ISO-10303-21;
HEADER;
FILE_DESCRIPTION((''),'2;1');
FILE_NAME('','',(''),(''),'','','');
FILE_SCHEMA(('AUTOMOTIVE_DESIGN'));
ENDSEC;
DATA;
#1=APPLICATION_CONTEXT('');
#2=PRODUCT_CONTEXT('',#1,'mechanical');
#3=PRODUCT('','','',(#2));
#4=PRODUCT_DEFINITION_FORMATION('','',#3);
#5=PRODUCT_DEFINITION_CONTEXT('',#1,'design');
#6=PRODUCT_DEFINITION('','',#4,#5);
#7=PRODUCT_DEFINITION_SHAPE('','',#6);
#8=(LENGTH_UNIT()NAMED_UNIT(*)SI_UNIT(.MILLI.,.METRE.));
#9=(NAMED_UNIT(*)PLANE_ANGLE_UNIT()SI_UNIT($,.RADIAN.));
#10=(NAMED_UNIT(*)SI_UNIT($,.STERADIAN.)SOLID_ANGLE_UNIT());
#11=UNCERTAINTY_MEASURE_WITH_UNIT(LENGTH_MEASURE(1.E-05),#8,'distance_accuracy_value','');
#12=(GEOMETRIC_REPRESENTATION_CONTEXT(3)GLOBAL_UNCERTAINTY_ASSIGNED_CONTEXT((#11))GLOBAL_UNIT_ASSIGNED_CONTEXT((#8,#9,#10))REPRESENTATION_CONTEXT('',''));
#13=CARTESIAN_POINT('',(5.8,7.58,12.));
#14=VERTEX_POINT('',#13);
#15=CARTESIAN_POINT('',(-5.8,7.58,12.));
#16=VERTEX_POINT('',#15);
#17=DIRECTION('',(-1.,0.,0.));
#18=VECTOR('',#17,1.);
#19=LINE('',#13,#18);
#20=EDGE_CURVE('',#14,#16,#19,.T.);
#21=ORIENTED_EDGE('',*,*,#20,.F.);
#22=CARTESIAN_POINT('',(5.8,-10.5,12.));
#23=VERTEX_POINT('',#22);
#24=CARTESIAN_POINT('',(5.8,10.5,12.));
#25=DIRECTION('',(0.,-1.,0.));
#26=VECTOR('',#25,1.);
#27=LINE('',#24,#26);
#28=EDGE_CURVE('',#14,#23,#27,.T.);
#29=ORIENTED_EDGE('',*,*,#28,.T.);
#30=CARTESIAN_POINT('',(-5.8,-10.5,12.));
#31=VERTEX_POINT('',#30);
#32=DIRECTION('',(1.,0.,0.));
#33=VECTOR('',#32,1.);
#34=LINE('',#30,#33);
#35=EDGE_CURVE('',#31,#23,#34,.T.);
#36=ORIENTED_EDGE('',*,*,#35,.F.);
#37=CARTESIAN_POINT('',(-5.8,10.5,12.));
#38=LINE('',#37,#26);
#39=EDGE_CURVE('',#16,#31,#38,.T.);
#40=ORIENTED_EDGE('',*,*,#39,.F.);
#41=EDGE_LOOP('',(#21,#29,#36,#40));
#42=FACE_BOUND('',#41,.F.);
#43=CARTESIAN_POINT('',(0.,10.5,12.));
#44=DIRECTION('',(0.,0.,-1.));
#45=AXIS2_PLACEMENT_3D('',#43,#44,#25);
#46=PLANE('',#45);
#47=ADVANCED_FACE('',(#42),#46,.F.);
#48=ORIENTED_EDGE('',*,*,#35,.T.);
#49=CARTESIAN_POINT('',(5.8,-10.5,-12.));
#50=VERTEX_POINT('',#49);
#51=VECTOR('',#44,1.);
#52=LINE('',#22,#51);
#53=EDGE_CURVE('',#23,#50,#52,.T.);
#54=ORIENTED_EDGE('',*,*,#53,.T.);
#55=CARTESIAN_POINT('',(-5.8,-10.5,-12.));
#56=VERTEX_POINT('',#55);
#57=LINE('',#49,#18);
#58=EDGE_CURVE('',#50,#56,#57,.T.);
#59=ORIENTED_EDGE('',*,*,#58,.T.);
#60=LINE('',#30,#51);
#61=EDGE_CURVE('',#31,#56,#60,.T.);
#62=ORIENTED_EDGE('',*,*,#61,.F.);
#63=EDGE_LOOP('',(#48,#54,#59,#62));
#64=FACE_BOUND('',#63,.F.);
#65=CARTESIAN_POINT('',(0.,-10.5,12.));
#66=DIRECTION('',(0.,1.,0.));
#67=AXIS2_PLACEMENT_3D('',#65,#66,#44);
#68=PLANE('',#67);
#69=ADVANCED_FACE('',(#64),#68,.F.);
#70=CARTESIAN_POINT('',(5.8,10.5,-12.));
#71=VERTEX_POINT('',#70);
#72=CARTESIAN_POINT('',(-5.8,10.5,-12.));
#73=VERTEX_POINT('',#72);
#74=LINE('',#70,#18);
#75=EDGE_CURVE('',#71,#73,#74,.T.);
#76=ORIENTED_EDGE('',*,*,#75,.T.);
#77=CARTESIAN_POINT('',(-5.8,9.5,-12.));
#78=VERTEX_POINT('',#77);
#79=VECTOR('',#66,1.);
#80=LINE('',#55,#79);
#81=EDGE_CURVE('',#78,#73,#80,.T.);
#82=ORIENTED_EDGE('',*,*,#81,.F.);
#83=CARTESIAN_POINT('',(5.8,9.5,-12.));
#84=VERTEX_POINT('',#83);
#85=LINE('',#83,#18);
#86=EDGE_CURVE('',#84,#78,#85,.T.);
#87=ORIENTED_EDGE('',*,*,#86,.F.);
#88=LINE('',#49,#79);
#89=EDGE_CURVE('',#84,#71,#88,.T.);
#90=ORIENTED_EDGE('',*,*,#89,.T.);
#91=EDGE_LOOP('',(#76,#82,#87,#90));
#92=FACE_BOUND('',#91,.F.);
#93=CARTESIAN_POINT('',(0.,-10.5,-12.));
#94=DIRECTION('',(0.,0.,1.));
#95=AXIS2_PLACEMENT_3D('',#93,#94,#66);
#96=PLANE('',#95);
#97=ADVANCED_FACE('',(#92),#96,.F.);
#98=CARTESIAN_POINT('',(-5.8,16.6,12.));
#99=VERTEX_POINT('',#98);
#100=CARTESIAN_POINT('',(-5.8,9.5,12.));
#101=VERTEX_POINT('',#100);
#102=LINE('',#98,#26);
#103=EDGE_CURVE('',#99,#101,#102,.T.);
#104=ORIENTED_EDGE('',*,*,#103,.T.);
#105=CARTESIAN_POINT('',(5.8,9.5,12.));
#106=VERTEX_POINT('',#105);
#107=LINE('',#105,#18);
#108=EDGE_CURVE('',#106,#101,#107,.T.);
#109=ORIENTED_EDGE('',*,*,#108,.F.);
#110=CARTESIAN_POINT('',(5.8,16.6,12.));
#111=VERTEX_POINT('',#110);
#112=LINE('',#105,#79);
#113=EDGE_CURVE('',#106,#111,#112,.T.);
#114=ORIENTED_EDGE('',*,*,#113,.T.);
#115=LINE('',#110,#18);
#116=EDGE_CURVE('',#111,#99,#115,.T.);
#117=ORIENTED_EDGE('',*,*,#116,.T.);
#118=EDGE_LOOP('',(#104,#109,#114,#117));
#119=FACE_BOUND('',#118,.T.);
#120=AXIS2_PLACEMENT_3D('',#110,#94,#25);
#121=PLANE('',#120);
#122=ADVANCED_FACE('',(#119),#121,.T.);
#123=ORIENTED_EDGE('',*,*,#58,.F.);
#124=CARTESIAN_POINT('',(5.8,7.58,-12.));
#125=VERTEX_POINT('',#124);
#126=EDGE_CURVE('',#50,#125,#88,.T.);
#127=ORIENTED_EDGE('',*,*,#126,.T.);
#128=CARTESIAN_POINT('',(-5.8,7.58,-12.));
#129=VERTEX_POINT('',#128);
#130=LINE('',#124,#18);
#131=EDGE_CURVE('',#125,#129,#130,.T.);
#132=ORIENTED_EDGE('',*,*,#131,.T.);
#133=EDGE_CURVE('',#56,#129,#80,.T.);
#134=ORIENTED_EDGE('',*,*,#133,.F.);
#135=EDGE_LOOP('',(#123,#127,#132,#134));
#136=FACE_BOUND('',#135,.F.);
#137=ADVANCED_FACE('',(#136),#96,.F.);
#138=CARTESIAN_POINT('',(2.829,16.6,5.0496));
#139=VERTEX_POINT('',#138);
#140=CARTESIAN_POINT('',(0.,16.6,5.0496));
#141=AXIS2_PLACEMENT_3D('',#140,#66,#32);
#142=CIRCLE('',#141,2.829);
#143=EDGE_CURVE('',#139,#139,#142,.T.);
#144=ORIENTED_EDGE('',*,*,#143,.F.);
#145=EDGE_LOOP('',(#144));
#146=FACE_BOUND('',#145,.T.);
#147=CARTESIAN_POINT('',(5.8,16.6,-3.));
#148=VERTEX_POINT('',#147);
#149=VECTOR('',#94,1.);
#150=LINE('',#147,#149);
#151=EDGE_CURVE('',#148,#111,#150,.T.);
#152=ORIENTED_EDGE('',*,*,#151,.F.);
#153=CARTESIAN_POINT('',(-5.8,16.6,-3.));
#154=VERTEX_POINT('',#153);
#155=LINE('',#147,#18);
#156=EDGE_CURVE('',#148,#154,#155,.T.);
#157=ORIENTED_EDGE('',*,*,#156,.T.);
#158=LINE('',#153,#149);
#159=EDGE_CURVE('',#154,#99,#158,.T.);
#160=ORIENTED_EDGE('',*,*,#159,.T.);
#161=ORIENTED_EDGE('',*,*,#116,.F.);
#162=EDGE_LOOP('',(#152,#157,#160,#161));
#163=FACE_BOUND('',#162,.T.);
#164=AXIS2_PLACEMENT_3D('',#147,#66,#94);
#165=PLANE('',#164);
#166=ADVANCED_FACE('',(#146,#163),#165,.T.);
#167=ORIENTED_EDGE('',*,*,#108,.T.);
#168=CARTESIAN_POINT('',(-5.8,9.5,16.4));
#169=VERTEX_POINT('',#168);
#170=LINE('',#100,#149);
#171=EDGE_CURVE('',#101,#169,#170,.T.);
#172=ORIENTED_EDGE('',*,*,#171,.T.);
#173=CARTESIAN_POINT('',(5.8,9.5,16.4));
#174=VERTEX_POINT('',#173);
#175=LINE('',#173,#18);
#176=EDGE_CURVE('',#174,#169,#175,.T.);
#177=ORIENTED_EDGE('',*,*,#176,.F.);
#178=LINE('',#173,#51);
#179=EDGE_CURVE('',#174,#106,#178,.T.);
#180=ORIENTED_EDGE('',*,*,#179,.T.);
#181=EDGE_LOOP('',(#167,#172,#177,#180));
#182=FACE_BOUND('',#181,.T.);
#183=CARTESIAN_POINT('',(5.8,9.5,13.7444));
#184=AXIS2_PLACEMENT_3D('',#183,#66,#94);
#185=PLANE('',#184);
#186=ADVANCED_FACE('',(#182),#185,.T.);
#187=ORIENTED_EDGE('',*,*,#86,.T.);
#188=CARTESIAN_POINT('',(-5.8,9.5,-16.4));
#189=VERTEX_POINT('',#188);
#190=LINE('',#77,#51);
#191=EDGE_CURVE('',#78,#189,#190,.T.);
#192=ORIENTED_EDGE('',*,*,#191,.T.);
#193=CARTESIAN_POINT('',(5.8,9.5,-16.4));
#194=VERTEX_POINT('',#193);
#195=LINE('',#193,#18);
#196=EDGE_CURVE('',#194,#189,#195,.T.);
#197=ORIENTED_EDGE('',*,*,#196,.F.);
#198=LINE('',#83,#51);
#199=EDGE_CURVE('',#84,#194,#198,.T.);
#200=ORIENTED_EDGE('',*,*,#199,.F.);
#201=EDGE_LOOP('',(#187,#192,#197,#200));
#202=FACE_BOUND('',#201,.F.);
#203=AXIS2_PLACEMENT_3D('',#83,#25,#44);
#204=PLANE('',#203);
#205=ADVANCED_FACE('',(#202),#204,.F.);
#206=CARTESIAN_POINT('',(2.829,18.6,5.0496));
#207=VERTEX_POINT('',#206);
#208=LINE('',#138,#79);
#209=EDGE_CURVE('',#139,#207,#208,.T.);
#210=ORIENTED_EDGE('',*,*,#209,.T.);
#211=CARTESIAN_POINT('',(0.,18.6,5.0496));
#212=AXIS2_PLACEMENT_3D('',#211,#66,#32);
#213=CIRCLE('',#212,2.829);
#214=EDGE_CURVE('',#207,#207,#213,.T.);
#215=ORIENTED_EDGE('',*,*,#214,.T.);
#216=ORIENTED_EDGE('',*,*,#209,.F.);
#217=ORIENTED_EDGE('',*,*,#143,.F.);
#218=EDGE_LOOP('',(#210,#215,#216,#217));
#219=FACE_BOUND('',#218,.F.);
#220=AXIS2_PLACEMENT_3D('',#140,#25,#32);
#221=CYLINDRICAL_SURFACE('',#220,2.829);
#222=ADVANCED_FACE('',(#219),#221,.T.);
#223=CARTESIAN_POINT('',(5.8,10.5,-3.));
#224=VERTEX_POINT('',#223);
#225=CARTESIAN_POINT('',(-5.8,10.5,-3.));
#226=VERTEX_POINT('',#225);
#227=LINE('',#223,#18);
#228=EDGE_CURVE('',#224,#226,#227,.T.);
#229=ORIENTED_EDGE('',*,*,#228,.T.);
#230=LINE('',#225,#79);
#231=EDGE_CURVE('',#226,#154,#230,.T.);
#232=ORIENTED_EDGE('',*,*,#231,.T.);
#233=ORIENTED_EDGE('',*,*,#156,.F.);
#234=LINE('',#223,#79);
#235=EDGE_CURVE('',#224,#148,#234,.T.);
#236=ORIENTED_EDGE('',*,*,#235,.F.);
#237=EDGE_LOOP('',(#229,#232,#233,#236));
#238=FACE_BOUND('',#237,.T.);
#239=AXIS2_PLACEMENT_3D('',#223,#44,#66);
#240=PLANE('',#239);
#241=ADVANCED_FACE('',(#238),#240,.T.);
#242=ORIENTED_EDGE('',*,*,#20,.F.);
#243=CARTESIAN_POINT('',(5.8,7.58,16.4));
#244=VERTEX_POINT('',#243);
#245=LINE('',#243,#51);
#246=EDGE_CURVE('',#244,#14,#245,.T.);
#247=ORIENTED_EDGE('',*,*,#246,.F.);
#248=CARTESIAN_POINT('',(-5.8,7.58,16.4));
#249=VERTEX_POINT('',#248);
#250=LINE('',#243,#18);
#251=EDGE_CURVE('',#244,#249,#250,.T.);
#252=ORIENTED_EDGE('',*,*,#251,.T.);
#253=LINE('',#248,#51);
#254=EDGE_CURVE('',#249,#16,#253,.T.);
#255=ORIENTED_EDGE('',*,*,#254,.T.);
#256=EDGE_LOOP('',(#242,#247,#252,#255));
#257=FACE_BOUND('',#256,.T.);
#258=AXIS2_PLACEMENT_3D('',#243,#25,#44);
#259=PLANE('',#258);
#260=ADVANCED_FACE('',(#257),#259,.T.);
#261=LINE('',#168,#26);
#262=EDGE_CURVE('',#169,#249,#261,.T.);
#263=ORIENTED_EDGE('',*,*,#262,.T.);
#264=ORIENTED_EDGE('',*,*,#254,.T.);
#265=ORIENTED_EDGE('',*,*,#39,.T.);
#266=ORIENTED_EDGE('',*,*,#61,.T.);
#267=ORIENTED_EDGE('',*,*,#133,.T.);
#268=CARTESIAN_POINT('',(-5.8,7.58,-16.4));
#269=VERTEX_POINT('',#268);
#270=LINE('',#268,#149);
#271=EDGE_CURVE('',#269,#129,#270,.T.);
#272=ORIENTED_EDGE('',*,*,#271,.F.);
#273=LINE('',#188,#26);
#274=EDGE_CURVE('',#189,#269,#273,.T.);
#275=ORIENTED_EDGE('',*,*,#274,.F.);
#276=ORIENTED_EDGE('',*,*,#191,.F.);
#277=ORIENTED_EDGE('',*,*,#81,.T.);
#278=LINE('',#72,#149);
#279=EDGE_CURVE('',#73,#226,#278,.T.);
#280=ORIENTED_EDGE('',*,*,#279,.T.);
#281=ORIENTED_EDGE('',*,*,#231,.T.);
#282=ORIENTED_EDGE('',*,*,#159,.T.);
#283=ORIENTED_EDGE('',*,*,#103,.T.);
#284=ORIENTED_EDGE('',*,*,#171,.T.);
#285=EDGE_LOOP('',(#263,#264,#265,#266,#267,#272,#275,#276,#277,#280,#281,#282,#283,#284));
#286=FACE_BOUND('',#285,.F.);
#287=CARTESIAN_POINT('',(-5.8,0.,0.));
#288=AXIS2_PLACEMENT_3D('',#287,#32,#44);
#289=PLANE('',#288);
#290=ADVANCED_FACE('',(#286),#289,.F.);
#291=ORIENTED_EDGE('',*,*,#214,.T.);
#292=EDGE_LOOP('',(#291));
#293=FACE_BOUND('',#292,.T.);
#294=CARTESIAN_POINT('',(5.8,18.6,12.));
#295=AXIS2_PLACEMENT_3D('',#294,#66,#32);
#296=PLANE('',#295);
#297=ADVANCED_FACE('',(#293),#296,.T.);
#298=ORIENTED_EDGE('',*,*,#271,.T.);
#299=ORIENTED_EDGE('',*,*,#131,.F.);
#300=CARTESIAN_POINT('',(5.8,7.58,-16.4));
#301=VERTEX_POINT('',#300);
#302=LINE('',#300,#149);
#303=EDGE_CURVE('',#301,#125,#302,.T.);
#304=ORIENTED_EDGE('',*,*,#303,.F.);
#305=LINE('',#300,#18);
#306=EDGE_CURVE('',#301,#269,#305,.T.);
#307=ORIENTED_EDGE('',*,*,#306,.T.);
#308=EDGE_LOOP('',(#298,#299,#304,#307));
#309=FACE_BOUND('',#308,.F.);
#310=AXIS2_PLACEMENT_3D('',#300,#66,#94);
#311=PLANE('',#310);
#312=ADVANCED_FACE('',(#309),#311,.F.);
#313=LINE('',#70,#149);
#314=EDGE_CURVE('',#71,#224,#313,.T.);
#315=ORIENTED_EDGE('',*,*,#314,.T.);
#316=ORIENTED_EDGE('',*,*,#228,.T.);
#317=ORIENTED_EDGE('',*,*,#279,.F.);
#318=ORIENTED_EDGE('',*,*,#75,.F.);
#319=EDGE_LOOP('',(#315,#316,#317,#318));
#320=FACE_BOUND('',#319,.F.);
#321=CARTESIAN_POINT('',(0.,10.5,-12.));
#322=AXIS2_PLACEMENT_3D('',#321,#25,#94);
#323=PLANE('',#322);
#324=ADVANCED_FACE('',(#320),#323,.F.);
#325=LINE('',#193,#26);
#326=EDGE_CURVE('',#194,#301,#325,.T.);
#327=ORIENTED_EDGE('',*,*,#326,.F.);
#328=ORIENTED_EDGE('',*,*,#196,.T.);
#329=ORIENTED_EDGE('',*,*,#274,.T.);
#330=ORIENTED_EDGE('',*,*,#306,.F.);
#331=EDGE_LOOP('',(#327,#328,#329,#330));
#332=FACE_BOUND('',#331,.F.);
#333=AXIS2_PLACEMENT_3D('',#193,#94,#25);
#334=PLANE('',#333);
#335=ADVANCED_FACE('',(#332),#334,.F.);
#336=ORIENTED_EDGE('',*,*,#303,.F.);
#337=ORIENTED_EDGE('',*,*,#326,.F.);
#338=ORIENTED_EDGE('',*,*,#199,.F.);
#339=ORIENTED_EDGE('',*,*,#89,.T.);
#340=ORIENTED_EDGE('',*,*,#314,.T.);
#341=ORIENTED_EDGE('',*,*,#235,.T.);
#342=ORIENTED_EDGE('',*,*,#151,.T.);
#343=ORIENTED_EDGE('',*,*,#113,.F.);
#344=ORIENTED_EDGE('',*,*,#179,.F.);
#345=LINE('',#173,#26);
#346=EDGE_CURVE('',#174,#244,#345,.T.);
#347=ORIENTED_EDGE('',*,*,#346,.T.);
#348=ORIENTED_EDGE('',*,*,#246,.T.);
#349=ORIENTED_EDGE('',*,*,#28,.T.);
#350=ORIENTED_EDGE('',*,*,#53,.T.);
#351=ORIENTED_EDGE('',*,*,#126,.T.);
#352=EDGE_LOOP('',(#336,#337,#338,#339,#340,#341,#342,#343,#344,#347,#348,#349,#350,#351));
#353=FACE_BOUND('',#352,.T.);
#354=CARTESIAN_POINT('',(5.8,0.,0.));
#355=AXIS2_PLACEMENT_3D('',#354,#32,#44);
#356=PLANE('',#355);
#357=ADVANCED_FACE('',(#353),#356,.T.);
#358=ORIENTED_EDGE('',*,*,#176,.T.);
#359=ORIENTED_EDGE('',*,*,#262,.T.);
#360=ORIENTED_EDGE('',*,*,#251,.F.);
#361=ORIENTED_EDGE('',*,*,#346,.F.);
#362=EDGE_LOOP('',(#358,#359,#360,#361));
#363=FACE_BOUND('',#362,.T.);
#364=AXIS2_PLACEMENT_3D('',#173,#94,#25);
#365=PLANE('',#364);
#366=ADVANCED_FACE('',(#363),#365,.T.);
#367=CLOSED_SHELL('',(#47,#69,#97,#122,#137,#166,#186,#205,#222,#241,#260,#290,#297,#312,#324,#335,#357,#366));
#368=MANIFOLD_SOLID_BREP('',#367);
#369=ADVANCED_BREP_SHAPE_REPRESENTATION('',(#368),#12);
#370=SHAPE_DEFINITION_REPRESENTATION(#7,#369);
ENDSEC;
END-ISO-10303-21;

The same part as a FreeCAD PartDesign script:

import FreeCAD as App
import Part
import Sketcher
Q = App.Units.Quantity


def add_polygon(sketch, points):
    """Adds a closed chain of lines whose ends are joined by coincident constraints."""
    first, n = sketch.GeometryCount, len(points)
    for a, b in zip(points, points[1:] + points[:1]):
        sketch.addGeometry(Part.LineSegment(App.Vector(*a, 0), App.Vector(*b, 0)), False)
    for i in range(n):
        sketch.addConstraint(Sketcher.Constraint("Coincident", first + i, 2, first + (i + 1) % n, 1))

doc = App.newDocument("Part")
body = doc.addObject("PartDesign::Body", "Body")

# Sketch on YZ plane
sketch1 = doc.addObject("Sketcher::SketchObject", "Sketch")
body.addObject(sketch1)
sketch1.AttachmentSupport = (doc.YZ_Plane, [""])
sketch1.MapMode = "FlatFace"
add_polygon(sketch1, [(10, -12), (10, 12), (-10, 12), (-10, -12)])  # lines 0-3
sketch1.addConstraint([
    Sketcher.Constraint("Vertical", 0),
    Sketcher.Constraint("Horizontal", 1),
    Sketcher.Constraint("Vertical", 2),
    Sketcher.Constraint("Horizontal", 3),
    Sketcher.Constraint("Symmetric", 0, 2, 2, 2, -1, 1),
    Sketcher.Constraint("DistanceX", 1, 2, 1, 1, Q("21 mm")),
    Sketcher.Constraint("DistanceY", 0, 1, 0, 2, Q("24 mm")),
])
pad1 = doc.addObject("PartDesign::Pad", "Pad")
body.addObject(pad1)
pad1.Profile = sketch1
pad1.Length = 11.6
pad1.Midplane = True

# Sketch on YZ plane
sketch2 = doc.addObject("Sketcher::SketchObject", "Sketch001")
body.addObject(sketch2)
sketch2.AttachmentSupport = (doc.YZ_Plane, [""])
sketch2.MapMode = "FlatFace"
sketch2.AttachmentOffset = App.Placement(App.Vector(0, 0, 5.8), App.Rotation())
add_polygon(sketch2, [(7.6, 12), (9.5, 12), (9.5, 16.4), (7.6, 16.4)])  # lines 0-3
add_polygon(sketch2, [(9.5, -16.4), (9.5, -12), (7.6, -12), (7.6, -16.4)])  # lines 4-7
sketch2.addConstraint([
    Sketcher.Constraint("Horizontal", 0),
    Sketcher.Constraint("Vertical", 1),
    Sketcher.Constraint("Horizontal", 2),
    Sketcher.Constraint("Vertical", 3),
    Sketcher.Constraint("Vertical", 4),
    Sketcher.Constraint("Horizontal", 5),
    Sketcher.Constraint("Vertical", 6),
    Sketcher.Constraint("Horizontal", 7),
    Sketcher.Constraint("Symmetric", 0, 2, 4, 2, -1),
    Sketcher.Constraint("Symmetric", 2, 2, 6, 2, -1),
    Sketcher.Constraint("DistanceY", 1, 1, 1, 2, Q("4.4 mm")),
    Sketcher.Constraint("DistanceX", 0, 1, 0, 2, Q("1.92 mm")),
    Sketcher.Constraint("DistanceY", -1, 1, 0, 2, Q("12 mm")),
    Sketcher.Constraint("DistanceX", -1, 1, 0, 2, Q("9.5 mm")),
])
pad2 = doc.addObject("PartDesign::Pad", "Pad001")
body.addObject(pad2)
pad2.Profile = sketch2
pad2.Length = 11.6
pad2.Reversed = True

# Sketch on YZ plane
sketch3 = doc.addObject("Sketcher::SketchObject", "Sketch002")
body.addObject(sketch3)
sketch3.AttachmentSupport = (doc.YZ_Plane, [""])
sketch3.MapMode = "FlatFace"
sketch3.AttachmentOffset = App.Placement(App.Vector(0, 0, 5.8), App.Rotation())
add_polygon(sketch3, [(17, 12), (10, 12), (10, -3), (17, -3)])  # lines 0-3
sketch3.addConstraint([
    Sketcher.Constraint("Horizontal", 0),
    Sketcher.Constraint("Vertical", 1),
    Sketcher.Constraint("Horizontal", 2),
    Sketcher.Constraint("Vertical", 3),
    Sketcher.Constraint("DistanceY", 1, 2, 1, 1, Q("15 mm")),
    Sketcher.Constraint("DistanceX", 0, 2, 0, 1, Q("6.1 mm")),
    Sketcher.Constraint("DistanceY", -1, 1, 0, 2, Q("12 mm")),
    Sketcher.Constraint("DistanceX", -1, 1, 0, 2, Q("10.5 mm")),
])
pad3 = doc.addObject("PartDesign::Pad", "Pad002")
body.addObject(pad3)
pad3.Profile = sketch3
pad3.Length = 11.6
pad3.Reversed = True

# Sketch on XZ plane
sketch4 = doc.addObject("Sketcher::SketchObject", "Sketch003")
body.addObject(sketch4)
sketch4.AttachmentSupport = (doc.XZ_Plane, [""])
sketch4.MapMode = "FlatFace"
sketch4.AttachmentOffset = App.Placement(App.Vector(0, 0, -16.6), App.Rotation())
sketch4.addGeometry(Part.Circle(App.Vector(0, 5, 0), App.Vector(0, 0, 1), 2.8), False)
sketch4.addConstraint([
    Sketcher.Constraint("PointOnObject", 0, 3, -2),
    Sketcher.Constraint("Diameter", 0, Q("5.658 mm")),
    Sketcher.Constraint("DistanceY", -1, 1, 0, 3, Q("5.0496 mm")),
])
pad4 = doc.addObject("PartDesign::Pad", "Pad003")
body.addObject(pad4)
pad4.Profile = sketch4
pad4.Length = 2
pad4.Reversed = True

doc.recompute()
